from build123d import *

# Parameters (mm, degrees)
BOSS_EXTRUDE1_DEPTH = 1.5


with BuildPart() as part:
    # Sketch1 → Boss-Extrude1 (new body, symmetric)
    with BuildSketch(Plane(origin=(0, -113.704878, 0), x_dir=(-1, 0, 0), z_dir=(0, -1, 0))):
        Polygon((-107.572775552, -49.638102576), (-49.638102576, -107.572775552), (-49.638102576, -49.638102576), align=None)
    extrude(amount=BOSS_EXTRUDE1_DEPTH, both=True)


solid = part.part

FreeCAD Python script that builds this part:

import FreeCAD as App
import Part
import Sketcher

V = App.Vector


def add_polygon(sketch, points):
    """Adds a closed chain of lines whose ends are joined by coincident constraints."""
    first, n = sketch.GeometryCount, len(points)
    for a, b in zip(points, points[1:] + points[:1]):
        sketch.addGeometry(Part.LineSegment(App.Vector(*a, 0), App.Vector(*b, 0)), False)
    for i in range(n):
        sketch.addConstraint(Sketcher.Constraint("Coincident", first + i, 2, first + (i + 1) % n, 1))

doc = App.newDocument("Part")
body = doc.addObject("PartDesign::Body", "Body")

# Sketch on XZ plane
sketch1 = body.newObject("Sketcher::SketchObject", "Sketch")
sketch1.AttachmentSupport = (doc.getObject("XZ_Plane"), [""])
sketch1.MapMode = "FlatFace"
sketch1.AttachmentOffset = App.Placement(V(0, 0, 113.704878), App.Rotation())
add_polygon(sketch1, [(107.572776, 49.638103), (49.638103, 107.572776), (49.638103, 49.638103)])  # lines 0-2
sketch1.addConstraint([
    Sketcher.Constraint("Vertical", 1),
    Sketcher.Constraint("Horizontal", 2),
    Sketcher.Constraint("Equal", 2, 1),
    Sketcher.Constraint("Distance", 0, 81.932),
    Sketcher.Constraint("DistanceX", -1, 1, 0, 2, 49.638103),
    Sketcher.Constraint("DistanceY", -1, 1, 0, 2, 107.572776),
])
pad1 = body.newObject("PartDesign::Pad", "Pad")
pad1.Profile = sketch1
pad1.Length = 3
pad1.Midplane = True

doc.recompute()
